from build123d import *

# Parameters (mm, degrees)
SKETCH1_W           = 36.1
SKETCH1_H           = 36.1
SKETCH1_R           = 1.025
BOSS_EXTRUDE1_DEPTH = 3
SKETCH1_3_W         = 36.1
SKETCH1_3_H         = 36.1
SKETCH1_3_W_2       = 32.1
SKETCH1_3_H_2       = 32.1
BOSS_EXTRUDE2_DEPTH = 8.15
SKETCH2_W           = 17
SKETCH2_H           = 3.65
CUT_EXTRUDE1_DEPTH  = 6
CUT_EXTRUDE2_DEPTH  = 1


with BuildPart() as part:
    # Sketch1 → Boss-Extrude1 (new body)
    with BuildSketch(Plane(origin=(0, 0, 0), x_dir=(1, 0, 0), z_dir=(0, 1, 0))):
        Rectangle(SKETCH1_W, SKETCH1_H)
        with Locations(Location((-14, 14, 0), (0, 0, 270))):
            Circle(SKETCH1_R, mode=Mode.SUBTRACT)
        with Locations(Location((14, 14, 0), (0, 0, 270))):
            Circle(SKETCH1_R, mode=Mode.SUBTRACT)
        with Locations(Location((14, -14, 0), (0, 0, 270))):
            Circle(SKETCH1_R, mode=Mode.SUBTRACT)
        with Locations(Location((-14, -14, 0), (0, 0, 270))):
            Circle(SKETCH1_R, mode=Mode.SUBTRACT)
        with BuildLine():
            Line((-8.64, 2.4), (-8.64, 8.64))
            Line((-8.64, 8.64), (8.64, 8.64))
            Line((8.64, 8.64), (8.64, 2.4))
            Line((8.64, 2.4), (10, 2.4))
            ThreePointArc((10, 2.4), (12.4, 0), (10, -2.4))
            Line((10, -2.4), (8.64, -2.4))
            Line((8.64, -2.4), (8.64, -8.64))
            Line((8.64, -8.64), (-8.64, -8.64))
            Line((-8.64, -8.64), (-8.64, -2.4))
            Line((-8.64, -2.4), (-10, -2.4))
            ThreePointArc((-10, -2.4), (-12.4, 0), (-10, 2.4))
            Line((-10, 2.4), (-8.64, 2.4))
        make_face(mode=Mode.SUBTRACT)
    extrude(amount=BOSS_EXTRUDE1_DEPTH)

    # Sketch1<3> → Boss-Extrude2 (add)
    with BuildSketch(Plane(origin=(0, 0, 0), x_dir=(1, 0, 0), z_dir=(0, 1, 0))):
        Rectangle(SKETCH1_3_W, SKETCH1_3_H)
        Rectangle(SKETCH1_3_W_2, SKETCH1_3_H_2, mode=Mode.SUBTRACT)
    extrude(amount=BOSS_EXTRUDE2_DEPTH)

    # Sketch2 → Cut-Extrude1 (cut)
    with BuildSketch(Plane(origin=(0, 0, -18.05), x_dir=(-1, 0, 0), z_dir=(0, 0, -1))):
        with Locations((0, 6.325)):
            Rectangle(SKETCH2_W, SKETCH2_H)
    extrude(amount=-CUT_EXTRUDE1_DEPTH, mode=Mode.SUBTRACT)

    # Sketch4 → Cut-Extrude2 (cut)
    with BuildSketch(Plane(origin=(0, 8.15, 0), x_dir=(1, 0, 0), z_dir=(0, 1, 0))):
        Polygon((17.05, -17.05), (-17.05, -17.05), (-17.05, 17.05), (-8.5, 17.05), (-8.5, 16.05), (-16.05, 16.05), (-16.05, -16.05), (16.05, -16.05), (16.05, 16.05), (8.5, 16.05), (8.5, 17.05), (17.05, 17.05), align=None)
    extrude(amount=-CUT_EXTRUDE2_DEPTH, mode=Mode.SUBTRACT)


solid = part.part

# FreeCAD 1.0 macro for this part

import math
import FreeCAD as App
import Part
import Sketcher
from FreeCAD import Vector
Q = App.Units.Quantity


def add_polygon(sketch, points):
    """Adds a closed chain of lines whose ends are joined by coincident constraints."""
    first, n = sketch.GeometryCount, len(points)
    for a, b in zip(points, points[1:] + points[:1]):
        sketch.addGeometry(Part.LineSegment(App.Vector(*a, 0), App.Vector(*b, 0)), False)
    for i in range(n):
        sketch.addConstraint(Sketcher.Constraint("Coincident", first + i, 2, first + (i + 1) % n, 1))

doc = App.newDocument("Part")
body = doc.addObject("PartDesign::Body", "Body")

sketch1 = body.newObject("Sketcher::SketchObject", "Sketch")
sketch1.AttachmentSupport = (doc.getObject("XZ_Plane"), [""])
sketch1.MapMode = "FlatFace"
add_polygon(sketch1, [(-18.05, -18.05), (-18.05, 18.05), (18.05, 18.05), (18.05, -18.05)])
sketch1.addGeometry(Part.Circle(Vector(-14, 14, 0), Vector(0, 0, 1), 1.025), False)
sketch1.addGeometry(Part.Circle(Vector(14, 14, 0), Vector(0, 0, 1), 1.025), False)
sketch1.addGeometry(Part.Circle(Vector(-14, -14, 0), Vector(0, 0, 1), 1.025), False)
sketch1.addGeometry(Part.LineSegment(Vector(-10, -2.4, 0), Vector(-8.64, -2.4, 0)), False)
sketch1.addGeometry(Part.LineSegment(Vector(-8.64, -2.4, 0), Vector(-8.64, -8.64, 0)), False)
sketch1.addGeometry(Part.LineSegment(Vector(-8.64, -8.64, 0), Vector(8.64, -8.64, 0)), False)
sketch1.addGeometry(Part.LineSegment(Vector(8.64, -8.64, 0), Vector(8.64, -2.4, 0)), False)
sketch1.addGeometry(Part.LineSegment(Vector(8.64, -2.4, 0), Vector(10, -2.4, 0)), False)
sketch1.addGeometry(Part.ArcOfCircle(Part.Circle(Vector(10, 0, 0), Vector(0, 0, 1), 2.4), math.radians(-90), math.radians(90)), False)
sketch1.addGeometry(Part.LineSegment(Vector(10, 2.4, 0), Vector(8.64, 2.4, 0)), False)
sketch1.addGeometry(Part.LineSegment(Vector(8.64, 2.4, 0), Vector(8.64, 8.64, 0)), False)
sketch1.addGeometry(Part.LineSegment(Vector(8.64, 8.64, 0), Vector(-8.64, 8.64, 0)), False)
sketch1.addGeometry(Part.LineSegment(Vector(-8.64, 8.64, 0), Vector(-8.64, 2.4, 0)), False)
sketch1.addGeometry(Part.LineSegment(Vector(-8.64, 2.4, 0), Vector(-10, 2.4, 0)), False)
sketch1.addGeometry(Part.ArcOfCircle(Part.Circle(Vector(-10, 0, 0), Vector(0, 0, 1), 2.4), math.radians(90), math.radians(270)), False)
sketch1.addGeometry(Part.Circle(Vector(14, -14, 0), Vector(0, 0, 1), 1.025), False)
sketch1.addConstraint(Sketcher.Constraint("Coincident", 7, 2, 8, 1))
sketch1.addConstraint(Sketcher.Constraint("Coincident", 8, 2, 9, 1))
sketch1.addConstraint(Sketcher.Constraint("Coincident", 9, 2, 10, 1))
sketch1.addConstraint(Sketcher.Constraint("Coincident", 10, 2, 11, 1))
sketch1.addConstraint(Sketcher.Constraint("Tangent", 11, 2, 12, 1))
sketch1.addConstraint(Sketcher.Constraint("Tangent", 12, 2, 13, 1))
sketch1.addConstraint(Sketcher.Constraint("Coincident", 13, 2, 14, 1))
sketch1.addConstraint(Sketcher.Constraint("Coincident", 14, 2, 15, 1))
sketch1.addConstraint(Sketcher.Constraint("Coincident", 15, 2, 16, 1))
sketch1.addConstraint(Sketcher.Constraint("Coincident", 16, 2, 17, 1))
sketch1.addConstraint(Sketcher.Constraint("Tangent", 17, 2, 18, 1))
sketch1.addConstraint(Sketcher.Constraint("Tangent", 18, 2, 7, 1))
sketch1.addConstraint(Sketcher.Constraint("Vertical", 0))
sketch1.addConstraint(Sketcher.Constraint("Horizontal", 1))
sketch1.addConstraint(Sketcher.Constraint("Vertical", 2))
sketch1.addConstraint(Sketcher.Constraint("Horizontal", 3))
sketch1.addConstraint(Sketcher.Constraint("Horizontal", 7))
sketch1.addConstraint(Sketcher.Constraint("Vertical", 8))
sketch1.addConstraint(Sketcher.Constraint("Horizontal", 9))
sketch1.addConstraint(Sketcher.Constraint("Vertical", 10))
sketch1.addConstraint(Sketcher.Constraint("Horizontal", 11))
sketch1.addConstraint(Sketcher.Constraint("Horizontal", 13))
sketch1.addConstraint(Sketcher.Constraint("Vertical", 14))
sketch1.addConstraint(Sketcher.Constraint("Horizontal", 15))
sketch1.addConstraint(Sketcher.Constraint("Vertical", 16))
sketch1.addConstraint(Sketcher.Constraint("Horizontal", 17))
sketch1.addConstraint(Sketcher.Constraint("Equal", 4, 5))
sketch1.addConstraint(Sketcher.Constraint("Equal", 5, 6))
sketch1.addConstraint(Sketcher.Constraint("Equal", 12, 18))
sketch1.addConstraint(Sketcher.Constraint("Equal", 6, 19))
sketch1.addConstraint(Sketcher.Constraint("Symmetric", 5, 3, 6, 3, -1, 1))
sketch1.addConstraint(Sketcher.Constraint("Symmetric", 12, 3, 18, 3, -1, 1))
sketch1.addConstraint(Sketcher.Constraint("Symmetric", 4, 3, 19, 3, -1, 1))
sketch1.addConstraint(Sketcher.Constraint("Symmetric", 0, 2, 2, 2, -1, 1))
sketch1.addConstraint(Sketcher.Constraint("Symmetric", 8, 2, 14, 2, -1, 1))
sketch1.addConstraint(Sketcher.Constraint("Symmetric", 4, 3, 5, 3, -2))
sketch1.addConstraint(Sketcher.Constraint("Symmetric", 7, 2, 10, 2, -2))
sketch1.addConstraint(Sketcher.Constraint("Vertical", 8, 2, 15, 2))
sketch1.addConstraint(Sketcher.Constraint("Equal", 3, 0))
sketch1.addConstraint(Sketcher.Constraint("Radius", 12, Q("2.4 mm")))
sketch1.addConstraint(Sketcher.Constraint("Diameter", 4, Q("2.05 mm")))
sketch1.addConstraint(Sketcher.Constraint("DistanceX", 1, 1, 1, 2, Q("36.1 mm")))
sketch1.addConstraint(Sketcher.Constraint("DistanceX", 4, 3, -1, 1, Q("14 mm")))
sketch1.addConstraint(Sketcher.Constraint("DistanceY", -1, 1, 4, 3, Q("14 mm")))
sketch1.addConstraint(Sketcher.Constraint("DistanceX", -1, 1, 12, 3, Q("10 mm")))
sketch1.addConstraint(Sketcher.Constraint("DistanceX", 7, 1, 7, 2, Q("1.36 mm")))
sketch1.addConstraint(Sketcher.Constraint("DistanceY", 8, 2, 8, 1, Q("6.24 mm")))
pad1 = body.newObject("PartDesign::Pad", "Pad")
pad1.Profile = sketch1
pad1.Length = 3
pad1.Reversed = True

sketch2 = body.newObject("Sketcher::SketchObject", "Sketch001")
sketch2.AttachmentSupport = (doc.getObject("XZ_Plane"), [""])
sketch2.MapMode = "FlatFace"
add_polygon(sketch2, [(-18.05, -18.05), (-18.05, 18.05), (18.05, 18.05), (18.05, -18.05)])
add_polygon(sketch2, [(16.05, 16.05), (-16.05, 16.05), (-16.05, -16.05), (16.05, -16.05)])
sketch2.addConstraint(Sketcher.Constraint("Vertical", 0))
sketch2.addConstraint(Sketcher.Constraint("Horizontal", 1))
sketch2.addConstraint(Sketcher.Constraint("Vertical", 2))
sketch2.addConstraint(Sketcher.Constraint("Horizontal", 3))
sketch2.addConstraint(Sketcher.Constraint("Horizontal", 4))
sketch2.addConstraint(Sketcher.Constraint("Vertical", 5))
sketch2.addConstraint(Sketcher.Constraint("Horizontal", 6))
sketch2.addConstraint(Sketcher.Constraint("Vertical", 7))
sketch2.addConstraint(Sketcher.Constraint("Symmetric", 0, 2, 2, 2, -1, 1))
sketch2.addConstraint(Sketcher.Constraint("Symmetric", 4, 2, 6, 2, -1, 1))
sketch2.addConstraint(Sketcher.Constraint("Equal", 3, 0))
sketch2.addConstraint(Sketcher.Constraint("Equal", 6, 5))
sketch2.addConstraint(Sketcher.Constraint("DistanceX", 1, 1, 1, 2, Q("36.1 mm")))
sketch2.addConstraint(Sketcher.Constraint("DistanceX", 4, 2, 4, 1, Q("32.1 mm")))
pad2 = body.newObject("PartDesign::Pad", "Pad001")
pad2.Profile = sketch2
pad2.Length = 8.15
pad2.Reversed = True

sketch3 = body.newObject("Sketcher::SketchObject", "Sketch002")
sketch3.AttachmentSupport = (doc.getObject("XY_Plane"), [""])
sketch3.MapMode = "FlatFace"
sketch3.AttachmentOffset = App.Placement(Vector(0, 0, -18.05), App.Rotation())
add_polygon(sketch3, [(8.5, 8.15), (8.5, 4.5), (-8.5, 4.5), (-8.5, 8.15)])
sketch3.addConstraint(Sketcher.Constraint("Vertical", 0))
sketch3.addConstraint(Sketcher.Constraint("Horizontal", 1))
sketch3.addConstraint(Sketcher.Constraint("Vertical", 2))
sketch3.addConstraint(Sketcher.Constraint("Horizontal", 3))
sketch3.addConstraint(Sketcher.Constraint("DistanceX", 1, 2, 1, 1, Q("17 mm")))
sketch3.addConstraint(Sketcher.Constraint("DistanceY", 0, 2, 0, 1, Q("3.65 mm")))
sketch3.addConstraint(Sketcher.Constraint("DistanceX", -1, 1, 0, 2, Q("8.5 mm")))
sketch3.addConstraint(Sketcher.Constraint("DistanceY", -1, 1, 0, 2, Q("4.5 mm")))
pocket1 = body.newObject("PartDesign::Pocket", "Pocket")
pocket1.Profile = sketch3
pocket1.Length = 6
pocket1.Reversed = True

sketch4 = body.newObject("Sketcher::SketchObject", "Sketch003")
sketch4.AttachmentSupport = (doc.getObject("XZ_Plane"), [""])
sketch4.MapMode = "FlatFace"
sketch4.AttachmentOffset = App.Placement(Vector(0, 0, -8.15), App.Rotation())
add_polygon(sketch4, [(-17.05, 17.05), (17.05, 17.05), (17.05, -17.05), (8.5, -17.05), (8.5, -16.05), (16.05, -16.05), (16.05, 16.05), (-16.05, 16.05), (-16.05, -16.05), (-8.5, -16.05), (-8.5, -17.05), (-17.05, -17.05)])
sketch4.addConstraint(Sketcher.Constraint("Horizontal", 0))
sketch4.addConstraint(Sketcher.Constraint("Vertical", 1))
sketch4.addConstraint(Sketcher.Constraint("Horizontal", 2))
sketch4.addConstraint(Sketcher.Constraint("Vertical", 3))
sketch4.addConstraint(Sketcher.Constraint("Horizontal", 4))
sketch4.addConstraint(Sketcher.Constraint("Vertical", 5))
sketch4.addConstraint(Sketcher.Constraint("Horizontal", 6))
sketch4.addConstraint(Sketcher.Constraint("Vertical", 7))
sketch4.addConstraint(Sketcher.Constraint("Horizontal", 8))
sketch4.addConstraint(Sketcher.Constraint("Vertical", 9))
sketch4.addConstraint(Sketcher.Constraint("Horizontal", 10))
sketch4.addConstraint(Sketcher.Constraint("Vertical", 11))
sketch4.addConstraint(Sketcher.Constraint("Symmetric", 4, 2, 6, 2, -1, 1))
sketch4.addConstraint(Sketcher.Constraint("Symmetric", 0, 2, 10, 2, -1, 1))
sketch4.addConstraint(Sketcher.Constraint("Symmetric", 3, 2, 8, 2, -2))
sketch4.addConstraint(Sketcher.Constraint("Horizontal", 2, 2, 9, 2))
sketch4.addConstraint(Sketcher.Constraint("Equal", 0, 1))
sketch4.addConstraint(Sketcher.Constraint("Equal", 6, 5))
sketch4.addConstraint(Sketcher.Constraint("DistanceY", 3, 1, 3, 2, Q("1 mm")))
sketch4.addConstraint(Sketcher.Constraint("DistanceX", 0, 1, 0, 2, Q("34.1 mm")))
sketch4.addConstraint(Sketcher.Constraint("DistanceX", 8, 2, 3, 2, Q("17 mm")))
pocket2 = body.newObject("PartDesign::Pocket", "Pocket001")
pocket2.Profile = sketch4
pocket2.Length = 1
pocket2.Reversed = True

doc.recompute()
